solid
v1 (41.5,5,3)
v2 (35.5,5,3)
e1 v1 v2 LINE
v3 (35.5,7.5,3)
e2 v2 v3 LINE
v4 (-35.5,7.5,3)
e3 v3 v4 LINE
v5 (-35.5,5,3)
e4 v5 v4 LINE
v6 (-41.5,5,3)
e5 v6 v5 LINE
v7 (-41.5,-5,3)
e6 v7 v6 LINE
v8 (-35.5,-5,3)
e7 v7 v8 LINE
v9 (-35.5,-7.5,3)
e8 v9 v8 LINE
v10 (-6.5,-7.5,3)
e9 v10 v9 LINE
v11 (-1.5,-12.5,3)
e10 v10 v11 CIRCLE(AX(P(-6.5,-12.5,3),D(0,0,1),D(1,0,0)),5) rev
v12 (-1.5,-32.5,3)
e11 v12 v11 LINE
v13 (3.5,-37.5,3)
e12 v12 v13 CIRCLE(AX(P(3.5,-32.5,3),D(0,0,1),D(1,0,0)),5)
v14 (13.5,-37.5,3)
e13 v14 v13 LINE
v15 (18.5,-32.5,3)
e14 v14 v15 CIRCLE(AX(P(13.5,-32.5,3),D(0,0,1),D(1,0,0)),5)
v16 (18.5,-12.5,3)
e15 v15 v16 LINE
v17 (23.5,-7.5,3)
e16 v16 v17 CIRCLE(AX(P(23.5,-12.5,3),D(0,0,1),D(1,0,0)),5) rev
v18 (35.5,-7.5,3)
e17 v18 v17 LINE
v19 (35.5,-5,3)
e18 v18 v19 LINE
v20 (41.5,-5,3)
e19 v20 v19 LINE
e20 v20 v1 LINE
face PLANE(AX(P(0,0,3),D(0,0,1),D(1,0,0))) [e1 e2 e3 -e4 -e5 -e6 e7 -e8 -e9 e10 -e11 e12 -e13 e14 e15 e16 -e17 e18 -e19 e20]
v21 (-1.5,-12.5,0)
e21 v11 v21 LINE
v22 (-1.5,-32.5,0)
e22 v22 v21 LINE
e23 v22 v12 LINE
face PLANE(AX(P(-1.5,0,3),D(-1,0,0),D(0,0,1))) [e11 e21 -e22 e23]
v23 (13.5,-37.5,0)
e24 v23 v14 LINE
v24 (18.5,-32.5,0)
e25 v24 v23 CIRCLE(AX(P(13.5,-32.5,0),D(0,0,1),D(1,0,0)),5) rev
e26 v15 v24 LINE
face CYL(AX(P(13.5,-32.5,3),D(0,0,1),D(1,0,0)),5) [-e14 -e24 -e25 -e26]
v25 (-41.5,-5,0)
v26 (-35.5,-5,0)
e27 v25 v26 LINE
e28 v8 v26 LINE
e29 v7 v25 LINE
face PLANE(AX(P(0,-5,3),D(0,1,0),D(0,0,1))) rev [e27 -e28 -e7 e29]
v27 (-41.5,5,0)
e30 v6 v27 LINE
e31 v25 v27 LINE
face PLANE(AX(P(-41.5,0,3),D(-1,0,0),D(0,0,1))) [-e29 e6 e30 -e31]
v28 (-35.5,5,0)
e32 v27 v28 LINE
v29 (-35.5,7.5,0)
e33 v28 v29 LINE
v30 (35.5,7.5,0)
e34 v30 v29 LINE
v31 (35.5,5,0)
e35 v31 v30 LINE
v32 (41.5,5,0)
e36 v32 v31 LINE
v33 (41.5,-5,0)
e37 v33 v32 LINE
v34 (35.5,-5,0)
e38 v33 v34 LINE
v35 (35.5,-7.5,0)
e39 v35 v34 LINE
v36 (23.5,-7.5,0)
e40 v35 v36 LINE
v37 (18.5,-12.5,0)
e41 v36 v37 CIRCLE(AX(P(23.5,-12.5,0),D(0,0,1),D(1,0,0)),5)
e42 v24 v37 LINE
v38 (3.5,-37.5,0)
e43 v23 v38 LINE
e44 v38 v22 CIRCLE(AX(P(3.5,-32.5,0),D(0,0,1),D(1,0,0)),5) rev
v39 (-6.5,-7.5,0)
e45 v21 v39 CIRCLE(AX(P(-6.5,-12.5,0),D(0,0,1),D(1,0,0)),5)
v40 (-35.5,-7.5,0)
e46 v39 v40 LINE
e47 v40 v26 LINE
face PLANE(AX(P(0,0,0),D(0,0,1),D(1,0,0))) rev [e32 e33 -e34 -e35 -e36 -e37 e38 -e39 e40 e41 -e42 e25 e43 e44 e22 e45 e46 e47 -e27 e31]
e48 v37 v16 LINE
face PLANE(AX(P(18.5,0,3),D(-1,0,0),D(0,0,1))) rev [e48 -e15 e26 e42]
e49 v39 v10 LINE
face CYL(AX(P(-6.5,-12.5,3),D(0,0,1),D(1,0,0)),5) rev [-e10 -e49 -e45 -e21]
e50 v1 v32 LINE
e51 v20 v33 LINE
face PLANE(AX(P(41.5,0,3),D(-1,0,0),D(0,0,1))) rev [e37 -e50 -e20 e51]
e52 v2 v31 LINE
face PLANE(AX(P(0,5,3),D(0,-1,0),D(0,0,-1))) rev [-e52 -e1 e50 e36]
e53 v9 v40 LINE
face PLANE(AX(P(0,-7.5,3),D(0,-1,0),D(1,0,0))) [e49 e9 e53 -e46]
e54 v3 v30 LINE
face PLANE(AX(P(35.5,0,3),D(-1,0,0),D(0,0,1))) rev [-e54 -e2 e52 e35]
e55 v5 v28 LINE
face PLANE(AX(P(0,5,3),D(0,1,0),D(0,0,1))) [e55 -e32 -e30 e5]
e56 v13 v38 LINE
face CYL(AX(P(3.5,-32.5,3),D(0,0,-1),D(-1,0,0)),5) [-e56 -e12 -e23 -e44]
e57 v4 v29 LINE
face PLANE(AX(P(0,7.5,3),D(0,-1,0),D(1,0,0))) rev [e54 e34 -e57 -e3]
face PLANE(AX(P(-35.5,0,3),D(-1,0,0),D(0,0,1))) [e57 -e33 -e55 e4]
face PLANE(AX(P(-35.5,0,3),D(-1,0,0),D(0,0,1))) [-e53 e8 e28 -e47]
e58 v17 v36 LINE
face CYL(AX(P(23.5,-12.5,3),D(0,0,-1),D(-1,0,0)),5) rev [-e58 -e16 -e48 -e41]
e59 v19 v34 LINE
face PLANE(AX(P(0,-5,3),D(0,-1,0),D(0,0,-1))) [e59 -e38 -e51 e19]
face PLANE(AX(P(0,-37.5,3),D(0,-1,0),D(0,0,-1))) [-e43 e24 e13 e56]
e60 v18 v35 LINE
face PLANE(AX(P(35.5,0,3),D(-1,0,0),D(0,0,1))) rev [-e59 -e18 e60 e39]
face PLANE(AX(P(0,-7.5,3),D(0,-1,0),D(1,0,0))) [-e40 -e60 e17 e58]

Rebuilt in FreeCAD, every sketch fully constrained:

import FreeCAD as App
import Part
import Sketcher
Q = App.Units.Quantity


def edges_at(feature, points):
    """Names of the edges that pass closest to the given points."""
    edges = feature.Shape.Edges
    near = lambda p: min(range(len(edges)), key=lambda i: edges[i].distToShape(Part.Vertex(*p))[0])
    return sorted({f"Edge{near(p) + 1}" for p in points})

doc = App.newDocument("Part")
params = doc.addObject("Spreadsheet::Sheet", "Params")
for row, (alias, value) in enumerate([
    ("sketch1_width", "34 mm"),
    ("sketch1_width2", "20 mm"),
    ("sketch1_width3", "17 mm"),
    ("sketch1_width4", "6 mm"),
    ("sketch1_height", "30 mm"),
    ("pad1_length", "3 mm"),
    ("fillet_radius", "5 mm"),
], start=1):
    params.set(f"A{row}", alias)
    params.set(f"B{row}", "=" + value)
    params.setAlias(f"B{row}", alias)

body = doc.addObject("PartDesign::Body", "Body")

# Sketch on XY plane
sketch1 = body.newObject("Sketcher::SketchObject", "Sketch")
sketch1.AttachmentSupport = (doc.getObject("XY_Plane"), [""])
sketch1.MapMode = "FlatFace"
sketch1.addGeometry(Part.LineSegment(App.Vector(-35.5, -5, 0), App.Vector(-35.5, -7.5, 0)), False)
sketch1.addGeometry(Part.LineSegment(App.Vector(-35.5, -7.5, 0), App.Vector(-1.5, -7.5, 0)), False)
sketch1.addGeometry(Part.LineSegment(App.Vector(-1.5, -7.5, 0), App.Vector(-1.5, -37.5, 0)), False)
sketch1.addGeometry(Part.LineSegment(App.Vector(-1.5, -37.5, 0), App.Vector(18.5, -37.5, 0)), False)
sketch1.addGeometry(Part.LineSegment(App.Vector(18.5, -37.5, 0), App.Vector(18.5, -7.5, 0)), False)
sketch1.addGeometry(Part.LineSegment(App.Vector(18.5, -7.5, 0), App.Vector(35.5, -7.5, 0)), False)
sketch1.addGeometry(Part.LineSegment(App.Vector(35.5, -7.5, 0), App.Vector(35.5, -5, 0)), False)
sketch1.addGeometry(Part.LineSegment(App.Vector(35.5, -5, 0), App.Vector(41.5, -5, 0)), False)
sketch1.addGeometry(Part.LineSegment(App.Vector(41.5, -5, 0), App.Vector(41.5, 5, 0)), False)
sketch1.addGeometry(Part.LineSegment(App.Vector(41.5, 5, 0), App.Vector(35.5, 5, 0)), False)
sketch1.addGeometry(Part.LineSegment(App.Vector(35.5, 5, 0), App.Vector(35.5, 7.5, 0)), False)
sketch1.addGeometry(Part.LineSegment(App.Vector(35.5, 7.5, 0), App.Vector(-35.5, 7.5, 0)), False)
sketch1.addGeometry(Part.LineSegment(App.Vector(-35.5, 7.5, 0), App.Vector(-35.5, 5, 0)), False)
sketch1.addGeometry(Part.LineSegment(App.Vector(-35.5, 5, 0), App.Vector(-41.5, 5, 0)), False)
sketch1.addGeometry(Part.LineSegment(App.Vector(-41.5, 5, 0), App.Vector(-41.5, -5, 0)), False)
sketch1.addGeometry(Part.LineSegment(App.Vector(-41.5, -5, 0), App.Vector(-35.5, -5, 0)), False)
sketch1.addConstraint(Sketcher.Constraint("Coincident", 0, 2, 1, 1))
sketch1.addConstraint(Sketcher.Constraint("Coincident", 1, 2, 2, 1))
sketch1.addConstraint(Sketcher.Constraint("Coincident", 2, 2, 3, 1))
sketch1.addConstraint(Sketcher.Constraint("Coincident", 3, 2, 4, 1))
sketch1.addConstraint(Sketcher.Constraint("Coincident", 4, 2, 5, 1))
sketch1.addConstraint(Sketcher.Constraint("Coincident", 5, 2, 6, 1))
sketch1.addConstraint(Sketcher.Constraint("Coincident", 6, 2, 7, 1))
sketch1.addConstraint(Sketcher.Constraint("Coincident", 7, 2, 8, 1))
sketch1.addConstraint(Sketcher.Constraint("Coincident", 8, 2, 9, 1))
sketch1.addConstraint(Sketcher.Constraint("Coincident", 9, 2, 10, 1))
sketch1.addConstraint(Sketcher.Constraint("Coincident", 10, 2, 11, 1))
sketch1.addConstraint(Sketcher.Constraint("Coincident", 11, 2, 12, 1))
sketch1.addConstraint(Sketcher.Constraint("Coincident", 12, 2, 13, 1))
sketch1.addConstraint(Sketcher.Constraint("Coincident", 13, 2, 14, 1))
sketch1.addConstraint(Sketcher.Constraint("Coincident", 14, 2, 15, 1))
sketch1.addConstraint(Sketcher.Constraint("Coincident", 15, 2, 0, 1))
sketch1.addConstraint(Sketcher.Constraint("Vertical", 0))
sketch1.addConstraint(Sketcher.Constraint("Horizontal", 1))
sketch1.addConstraint(Sketcher.Constraint("Vertical", 2))
sketch1.addConstraint(Sketcher.Constraint("Horizontal", 3))
sketch1.addConstraint(Sketcher.Constraint("Vertical", 4))
sketch1.addConstraint(Sketcher.Constraint("Horizontal", 5))
sketch1.addConstraint(Sketcher.Constraint("Vertical", 6))
sketch1.addConstraint(Sketcher.Constraint("Horizontal", 7))
sketch1.addConstraint(Sketcher.Constraint("Vertical", 8))
sketch1.addConstraint(Sketcher.Constraint("Horizontal", 9))
sketch1.addConstraint(Sketcher.Constraint("Vertical", 10))
sketch1.addConstraint(Sketcher.Constraint("Horizontal", 11))
sketch1.addConstraint(Sketcher.Constraint("Vertical", 12))
sketch1.addConstraint(Sketcher.Constraint("Horizontal", 13))
sketch1.addConstraint(Sketcher.Constraint("Vertical", 14))
sketch1.addConstraint(Sketcher.Constraint("Horizontal", 15))
sketch1.addConstraint(Sketcher.Constraint("Symmetric", 0, 2, 10, 2, -1, 1))
sketch1.addConstraint(Sketcher.Constraint("Symmetric", 5, 2, 11, 2, -1, 1))
sketch1.addConstraint(Sketcher.Constraint("Symmetric", 7, 2, 13, 2, -1, 1))
sketch1.addConstraint(Sketcher.Constraint("Symmetric", 9, 2, 12, 2, -2))
sketch1.addConstraint(Sketcher.Constraint("Horizontal", 7, 2, 14, 2))
sketch1.addConstraint(Sketcher.Constraint("DistanceX", 1, 1, 1, 2, Q("34 mm")))
sketch1.addConstraint(Sketcher.Constraint("DistanceX", 3, 1, 3, 2, Q("20 mm")))
sketch1.addConstraint(Sketcher.Constraint("DistanceX", 5, 1, 5, 2, Q("17 mm")))
sketch1.addConstraint(Sketcher.Constraint("DistanceX", 7, 1, 7, 2, Q("6 mm")))
sketch1.addConstraint(Sketcher.Constraint("DistanceY", 2, 2, 2, 1, Q("30 mm")))
sketch1.addConstraint(Sketcher.Constraint("DistanceY", 8, 1, 8, 2, Q("10 mm")))
sketch1.addConstraint(Sketcher.Constraint("DistanceY", 0, 2, 0, 1, Q("2.5 mm")))
sketch1.setExpression("Constraints[37]", "Params.sketch1_width")
sketch1.setExpression("Constraints[38]", "Params.sketch1_width2")
sketch1.setExpression("Constraints[39]", "Params.sketch1_width3")
sketch1.setExpression("Constraints[40]", "Params.sketch1_width4")
sketch1.setExpression("Constraints[41]", "Params.sketch1_height")
pad1 = body.newObject("PartDesign::Pad", "Pad")
pad1.Profile = sketch1
pad1.setExpression("Length", "Params.pad1_length")
doc.recompute()

fillet = body.newObject("PartDesign::Fillet", "Fillet")
fillet.Base = (pad1, edges_at(pad1, [
    (18.5, -7.5, 1.5),
    (18.5, -37.5, 1.5),
    (-1.5, -37.5, 1.5),
    (-1.5, -7.5, 1.5),
]))
fillet.setExpression("Radius", "Params.fillet_radius")

doc.recompute()
